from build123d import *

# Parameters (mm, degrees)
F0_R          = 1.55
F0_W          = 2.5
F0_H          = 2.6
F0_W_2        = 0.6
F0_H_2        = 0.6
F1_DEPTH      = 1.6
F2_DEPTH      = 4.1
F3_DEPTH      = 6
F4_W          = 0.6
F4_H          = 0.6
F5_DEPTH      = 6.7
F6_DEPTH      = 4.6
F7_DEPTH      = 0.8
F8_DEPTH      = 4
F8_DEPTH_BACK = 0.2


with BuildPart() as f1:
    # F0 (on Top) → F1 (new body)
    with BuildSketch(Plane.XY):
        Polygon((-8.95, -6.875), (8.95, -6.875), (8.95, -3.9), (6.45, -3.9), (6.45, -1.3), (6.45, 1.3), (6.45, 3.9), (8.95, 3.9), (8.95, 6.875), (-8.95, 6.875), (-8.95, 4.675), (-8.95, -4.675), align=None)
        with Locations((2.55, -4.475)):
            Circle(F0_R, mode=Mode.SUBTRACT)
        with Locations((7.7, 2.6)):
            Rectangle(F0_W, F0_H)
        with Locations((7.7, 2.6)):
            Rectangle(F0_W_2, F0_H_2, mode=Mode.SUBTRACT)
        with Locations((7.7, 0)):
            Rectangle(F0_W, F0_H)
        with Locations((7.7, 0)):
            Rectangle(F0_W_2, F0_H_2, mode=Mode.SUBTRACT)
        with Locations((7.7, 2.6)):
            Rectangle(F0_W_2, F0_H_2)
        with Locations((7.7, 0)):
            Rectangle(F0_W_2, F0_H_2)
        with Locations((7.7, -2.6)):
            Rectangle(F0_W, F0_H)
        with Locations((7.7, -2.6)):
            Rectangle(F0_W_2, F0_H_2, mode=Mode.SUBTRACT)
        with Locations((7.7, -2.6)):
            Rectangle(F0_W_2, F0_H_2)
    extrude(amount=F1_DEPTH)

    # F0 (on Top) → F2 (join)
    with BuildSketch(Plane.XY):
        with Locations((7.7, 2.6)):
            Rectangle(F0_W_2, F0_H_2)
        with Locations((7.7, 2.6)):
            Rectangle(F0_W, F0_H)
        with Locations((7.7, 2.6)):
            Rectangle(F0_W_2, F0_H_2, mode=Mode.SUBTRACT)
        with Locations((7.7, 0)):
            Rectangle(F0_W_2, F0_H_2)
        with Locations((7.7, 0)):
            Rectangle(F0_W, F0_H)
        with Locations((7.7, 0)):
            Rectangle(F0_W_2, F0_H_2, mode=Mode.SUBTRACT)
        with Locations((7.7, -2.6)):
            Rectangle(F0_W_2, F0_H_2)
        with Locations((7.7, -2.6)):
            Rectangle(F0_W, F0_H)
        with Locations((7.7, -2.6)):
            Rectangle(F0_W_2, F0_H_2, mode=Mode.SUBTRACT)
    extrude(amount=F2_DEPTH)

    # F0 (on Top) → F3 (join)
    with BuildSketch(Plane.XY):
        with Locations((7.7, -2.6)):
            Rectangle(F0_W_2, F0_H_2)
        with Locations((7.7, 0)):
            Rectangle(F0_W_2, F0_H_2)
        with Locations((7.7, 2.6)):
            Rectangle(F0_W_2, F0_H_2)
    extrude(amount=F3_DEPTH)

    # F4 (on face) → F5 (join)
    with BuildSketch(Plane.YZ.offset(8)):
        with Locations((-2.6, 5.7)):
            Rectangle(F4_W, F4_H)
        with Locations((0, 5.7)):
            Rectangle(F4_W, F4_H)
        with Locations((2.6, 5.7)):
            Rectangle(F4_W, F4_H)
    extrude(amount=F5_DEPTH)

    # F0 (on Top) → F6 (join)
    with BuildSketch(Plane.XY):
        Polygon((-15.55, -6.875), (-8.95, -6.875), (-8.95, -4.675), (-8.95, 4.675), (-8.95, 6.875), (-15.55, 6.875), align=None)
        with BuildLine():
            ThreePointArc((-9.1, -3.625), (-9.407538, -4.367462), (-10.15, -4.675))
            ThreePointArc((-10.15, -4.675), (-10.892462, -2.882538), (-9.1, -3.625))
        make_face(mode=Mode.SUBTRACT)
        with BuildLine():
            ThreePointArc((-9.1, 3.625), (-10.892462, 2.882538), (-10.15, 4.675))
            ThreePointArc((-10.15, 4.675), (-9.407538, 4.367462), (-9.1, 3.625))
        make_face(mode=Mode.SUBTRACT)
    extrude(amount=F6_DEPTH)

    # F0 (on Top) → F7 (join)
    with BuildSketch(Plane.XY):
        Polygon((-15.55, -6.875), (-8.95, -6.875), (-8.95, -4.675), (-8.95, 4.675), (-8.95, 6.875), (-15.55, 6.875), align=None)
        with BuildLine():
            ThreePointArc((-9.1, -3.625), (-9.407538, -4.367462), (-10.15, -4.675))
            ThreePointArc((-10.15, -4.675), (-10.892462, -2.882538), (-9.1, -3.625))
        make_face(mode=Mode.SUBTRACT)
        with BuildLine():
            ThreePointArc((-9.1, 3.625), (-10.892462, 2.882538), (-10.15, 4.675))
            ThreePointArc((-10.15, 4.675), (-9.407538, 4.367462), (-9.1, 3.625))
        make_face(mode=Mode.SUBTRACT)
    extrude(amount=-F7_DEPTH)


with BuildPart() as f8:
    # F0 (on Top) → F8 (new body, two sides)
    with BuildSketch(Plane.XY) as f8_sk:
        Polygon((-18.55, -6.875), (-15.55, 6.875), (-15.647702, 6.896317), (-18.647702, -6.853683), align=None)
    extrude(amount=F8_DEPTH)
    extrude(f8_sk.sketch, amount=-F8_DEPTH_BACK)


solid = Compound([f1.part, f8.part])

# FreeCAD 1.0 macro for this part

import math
import FreeCAD as App
import Part
import Sketcher


def add_polygon(sketch, points):
    """Adds a closed chain of lines whose ends are joined by coincident constraints."""
    first, n = sketch.GeometryCount, len(points)
    for a, b in zip(points, points[1:] + points[:1]):
        sketch.addGeometry(Part.LineSegment(App.Vector(*a, 0), App.Vector(*b, 0)), False)
    for i in range(n):
        sketch.addConstraint(Sketcher.Constraint("Coincident", first + i, 2, first + (i + 1) % n, 1))

doc = App.newDocument("Part")
body = doc.addObject("PartDesign::Body", "Body")

sketch1 = body.newObject("Sketcher::SketchObject", "Sketch")
sketch1.AttachmentSupport = (doc.getObject("XY_Plane"), [""])
sketch1.MapMode = "FlatFace"
add_polygon(sketch1, [(-8.9, -6.9), (8.9, -6.9), (8.9, 6.9), (-8.9, 6.9)])
sketch1.addGeometry(Part.Circle(App.Vector(2.5, -4.5, 0), App.Vector(0, 0, 1), 1.6), False)
sketch1.addConstraint([
    Sketcher.Constraint("Horizontal", 0),
    Sketcher.Constraint("Vertical", 1),
    Sketcher.Constraint("Horizontal", 2),
    Sketcher.Constraint("Vertical", 3),
    Sketcher.Constraint("Symmetric", 0, 2, 2, 2, -1, 1),
    Sketcher.Constraint("Diameter", 4, 3.1),
    Sketcher.Constraint("DistanceX", 0, 1, 0, 2, 17.9),
    Sketcher.Constraint("DistanceY", 1, 1, 1, 2, 13.75),
    Sketcher.Constraint("DistanceX", 4, 3, 0, 2, 6.4),
    Sketcher.Constraint("DistanceY", 0, 2, 4, 3, 2.4),
])
pad1 = body.newObject("PartDesign::Pad", "Pad")
pad1.Profile = sketch1
pad1.Length = 1.6

sketch2 = body.newObject("Sketcher::SketchObject", "Sketch001")
sketch2.AttachmentSupport = (doc.getObject("XY_Plane"), [""])
sketch2.MapMode = "FlatFace"
add_polygon(sketch2, [(6.5, 3.9), (6.5, -3.9), (8.9, -3.9), (8.9, 3.9)])
add_polygon(sketch2, [(8, -2.9), (7.4, -2.9), (7.4, -2.3), (8, -2.3)])
add_polygon(sketch2, [(8, -0.3), (7.4, -0.3), (7.4, 0.3), (8, 0.3)])
add_polygon(sketch2, [(8, 2.3), (7.4, 2.3), (7.4, 2.9), (8, 2.9)])
sketch2.addConstraint([
    Sketcher.Constraint("Vertical", 0),
    Sketcher.Constraint("Horizontal", 1),
    Sketcher.Constraint("Vertical", 2),
    Sketcher.Constraint("Horizontal", 3),
    Sketcher.Constraint("Horizontal", 4),
    Sketcher.Constraint("Vertical", 5),
    Sketcher.Constraint("Horizontal", 6),
    Sketcher.Constraint("Vertical", 7),
    Sketcher.Constraint("Horizontal", 8),
    Sketcher.Constraint("Vertical", 9),
    Sketcher.Constraint("Horizontal", 10),
    Sketcher.Constraint("Vertical", 11),
    Sketcher.Constraint("Horizontal", 12),
    Sketcher.Constraint("Vertical", 13),
    Sketcher.Constraint("Horizontal", 14),
    Sketcher.Constraint("Vertical", 15),
    Sketcher.Constraint("Symmetric", 5, 2, 12, 2, -1),
    Sketcher.Constraint("Symmetric", 7, 2, 14, 2, -1),
    Sketcher.Constraint("Vertical", 5, 2, 8, 2),
    Sketcher.Constraint("Vertical", 7, 2, 10, 2),
    Sketcher.Constraint("Equal", 14, 5),
    Sketcher.Constraint("Equal", 7, 9),
    Sketcher.Constraint("DistanceX", 1, 1, 1, 2, 2.5),
    Sketcher.Constraint("DistanceX", 4, 2, 4, 1, 0.6),
    Sketcher.Constraint("DistanceY", 0, 2, 0, 1, 7.8),
    Sketcher.Constraint("DistanceX", -1, 1, 6, 2, 8.0),
    Sketcher.Constraint("DistanceY", 0, 2, 4, 2, 1.0),
    Sketcher.Constraint("DistanceY", 5, 2, 8, 2, 2.0),
    Sketcher.Constraint("DistanceY", 9, 2, 12, 2, 2.0),
    Sketcher.Constraint("DistanceX", -1, 1, 0, 2, 6.45),
])
pad2 = body.newObject("PartDesign::Pad", "Pad001")
pad2.Profile = sketch2
pad2.Length = 4.1

sketch3 = body.newObject("Sketcher::SketchObject", "Sketch002")
sketch3.AttachmentSupport = (doc.getObject("XY_Plane"), [""])
sketch3.MapMode = "FlatFace"
add_polygon(sketch3, [(7.4, -2.3), (7.4, -2.9), (8, -2.9), (8, -2.3)])
add_polygon(sketch3, [(7.4, 0.3), (7.4, -0.3), (8, -0.3), (8, 0.3)])
add_polygon(sketch3, [(7.4, 2.9), (7.4, 2.3), (8, 2.3), (8, 2.9)])
sketch3.addConstraint([
    Sketcher.Constraint("Vertical", 0),
    Sketcher.Constraint("Horizontal", 1),
    Sketcher.Constraint("Vertical", 2),
    Sketcher.Constraint("Horizontal", 3),
    Sketcher.Constraint("Vertical", 4),
    Sketcher.Constraint("Horizontal", 5),
    Sketcher.Constraint("Vertical", 6),
    Sketcher.Constraint("Horizontal", 7),
    Sketcher.Constraint("Vertical", 8),
    Sketcher.Constraint("Horizontal", 9),
    Sketcher.Constraint("Vertical", 10),
    Sketcher.Constraint("Horizontal", 11),
    Sketcher.Constraint("Symmetric", 3, 2, 8, 2, -1),
    Sketcher.Constraint("Symmetric", 1, 2, 10, 2, -1),
    Sketcher.Constraint("Vertical", 3, 2, 4, 2),
    Sketcher.Constraint("Vertical", 2, 2, 5, 2),
    Sketcher.Constraint("Equal", 11, 0),
    Sketcher.Constraint("Equal", 2, 4),
    Sketcher.Constraint("DistanceX", 1, 1, 1, 2, 0.6),
    Sketcher.Constraint("DistanceX", -1, 1, 1, 2, 8.0),
    Sketcher.Constraint("DistanceY", 3, 2, 4, 2, 2.0),
    Sketcher.Constraint("DistanceY", 7, 2, 8, 2, 2.0),
])
pad3 = body.newObject("PartDesign::Pad", "Pad002")
pad3.Profile = sketch3
pad3.Length = 6

sketch4 = body.newObject("Sketcher::SketchObject", "Sketch003")
sketch4.AttachmentSupport = (doc.getObject("YZ_Plane"), [""])
sketch4.MapMode = "FlatFace"
sketch4.AttachmentOffset = App.Placement(App.Vector(0, 0, 8), App.Rotation())
add_polygon(sketch4, [(-2.9, 6), (-2.9, 5.4), (-2.3, 5.4), (-2.3, 6)])
add_polygon(sketch4, [(-0.3, 6), (-0.3, 5.4), (0.3, 5.4), (0.3, 6)])
add_polygon(sketch4, [(2.3, 6), (2.3, 5.4), (2.9, 5.4), (2.9, 6)])
sketch4.addConstraint([
    Sketcher.Constraint("Vertical", 0),
    Sketcher.Constraint("Horizontal", 1),
    Sketcher.Constraint("Vertical", 2),
    Sketcher.Constraint("Horizontal", 3),
    Sketcher.Constraint("Vertical", 4),
    Sketcher.Constraint("Horizontal", 5),
    Sketcher.Constraint("Vertical", 6),
    Sketcher.Constraint("Horizontal", 7),
    Sketcher.Constraint("Vertical", 8),
    Sketcher.Constraint("Horizontal", 9),
    Sketcher.Constraint("Vertical", 10),
    Sketcher.Constraint("Horizontal", 11),
    Sketcher.Constraint("Symmetric", 1, 2, 8, 2, -2),
    Sketcher.Constraint("Symmetric", 3, 2, 10, 2, -2),
    Sketcher.Constraint("Horizontal", 1, 2, 4, 2),
    Sketcher.Constraint("Horizontal", 3, 2, 6, 2),
    Sketcher.Constraint("Equal", 3, 5),
    Sketcher.Constraint("Equal", 11, 0),
    Sketcher.Constraint("DistanceX", 1, 1, 1, 2, 0.6),
    Sketcher.Constraint("DistanceY", -1, 1, 2, 2, 6.0),
    Sketcher.Constraint("DistanceX", 1, 2, 4, 2, 2.0),
    Sketcher.Constraint("DistanceX", 5, 2, 8, 2, 2.0),
])
pad4 = body.newObject("PartDesign::Pad", "Pad003")
pad4.Profile = sketch4
pad4.Length = 6.7

sketch5 = body.newObject("Sketcher::SketchObject", "Sketch004")
sketch5.AttachmentSupport = (doc.getObject("XY_Plane"), [""])
sketch5.MapMode = "FlatFace"
add_polygon(sketch5, [(-15.6, -6.9), (-8.9, -6.9), (-8.9, 6.9), (-15.6, 6.9)])
sketch5.addGeometry(Part.ArcOfCircle(Part.Circle(App.Vector(-10.1, -3.6, 0), App.Vector(0, 0, 1), 1), math.radians(0), math.radians(270)), False)
sketch5.addGeometry(Part.ArcOfCircle(Part.Circle(App.Vector(-10.2, -3.6, 0), App.Vector(0, 0, 1), 1.1), math.radians(-90), math.radians(0)), False)
sketch5.addGeometry(Part.ArcOfCircle(Part.Circle(App.Vector(-10.2, 3.6, 0), App.Vector(0, 0, 1), 1.1), math.radians(0), math.radians(90)), False)
sketch5.addGeometry(Part.ArcOfCircle(Part.Circle(App.Vector(-10.1, 3.6, 0), App.Vector(0, 0, 1), 1), math.radians(90), math.radians(360)), False)
sketch5.addConstraint([
    Sketcher.Constraint("Tangent", 4, 1, 5, 2),
    Sketcher.Constraint("Coincident", 5, 1, 4, 2),
    Sketcher.Constraint("Tangent", 6, 1, 7, 2),
    Sketcher.Constraint("Coincident", 7, 1, 6, 2),
    Sketcher.Constraint("Horizontal", 0),
    Sketcher.Constraint("Vertical", 1),
    Sketcher.Constraint("Horizontal", 2),
    Sketcher.Constraint("Vertical", 3),
    Sketcher.Constraint("Equal", 5, 6),
    Sketcher.Constraint("Symmetric", 4, 3, 6, 3, -1),
    Sketcher.Constraint("Horizontal", 5, 3, 4, 1),
    Sketcher.Constraint("Horizontal", 7, 3, 6, 1),
    Sketcher.Constraint("Vertical", 7, 3, 5, 1),
    Sketcher.Constraint("Vertical", 5, 1, 7, 1),
    Sketcher.Constraint("Radius", 4, 1.05),
    Sketcher.Constraint("DistanceX", 0, 1, 0, 2, 6.6),
    Sketcher.Constraint("DistanceY", 1, 1, 1, 2, 13.75),
    Sketcher.Constraint("DistanceX", 4, 1, -1, 1, 9.1),
    Sketcher.Constraint("DistanceX", 4, 3, 0, 2, 1.2),
    Sketcher.Constraint("DistanceY", 0, 2, 6, 3, 10.5),
    Sketcher.Constraint("DistanceY", 5, 3, 1, 2, 10.5),
])
pad5 = body.newObject("PartDesign::Pad", "Pad004")
pad5.Profile = sketch5
pad5.Length = 4.6

sketch6 = body.newObject("Sketcher::SketchObject", "Sketch005")
sketch6.AttachmentSupport = (doc.getObject("XY_Plane"), [""])
sketch6.MapMode = "FlatFace"
add_polygon(sketch6, [(-15.6, -6.9), (-8.9, -6.9), (-8.9, 6.9), (-15.6, 6.9)])
sketch6.addGeometry(Part.ArcOfCircle(Part.Circle(App.Vector(-10.1, -3.6, 0), App.Vector(0, 0, 1), 1), math.radians(0), math.radians(270)), False)
sketch6.addGeometry(Part.ArcOfCircle(Part.Circle(App.Vector(-10.2, -3.6, 0), App.Vector(0, 0, 1), 1.1), math.radians(-90), math.radians(0)), False)
sketch6.addGeometry(Part.ArcOfCircle(Part.Circle(App.Vector(-10.2, 3.6, 0), App.Vector(0, 0, 1), 1.1), math.radians(0), math.radians(90)), False)
sketch6.addGeometry(Part.ArcOfCircle(Part.Circle(App.Vector(-10.1, 3.6, 0), App.Vector(0, 0, 1), 1), math.radians(90), math.radians(360)), False)
sketch6.addConstraint([
    Sketcher.Constraint("Tangent", 4, 1, 5, 2),
    Sketcher.Constraint("Coincident", 5, 1, 4, 2),
    Sketcher.Constraint("Tangent", 6, 1, 7, 2),
    Sketcher.Constraint("Coincident", 7, 1, 6, 2),
    Sketcher.Constraint("Horizontal", 0),
    Sketcher.Constraint("Vertical", 1),
    Sketcher.Constraint("Horizontal", 2),
    Sketcher.Constraint("Vertical", 3),
    Sketcher.Constraint("Equal", 5, 6),
    Sketcher.Constraint("Symmetric", 4, 3, 6, 3, -1),
    Sketcher.Constraint("Horizontal", 5, 3, 4, 1),
    Sketcher.Constraint("Horizontal", 7, 3, 6, 1),
    Sketcher.Constraint("Vertical", 7, 3, 5, 1),
    Sketcher.Constraint("Vertical", 5, 1, 7, 1),
    Sketcher.Constraint("Radius", 4, 1.05),
    Sketcher.Constraint("DistanceX", 0, 1, 0, 2, 6.6),
    Sketcher.Constraint("DistanceY", 1, 1, 1, 2, 13.75),
    Sketcher.Constraint("DistanceX", 4, 1, -1, 1, 9.1),
    Sketcher.Constraint("DistanceX", 4, 3, 0, 2, 1.2),
    Sketcher.Constraint("DistanceY", 0, 2, 6, 3, 10.5),
    Sketcher.Constraint("DistanceY", 5, 3, 1, 2, 10.5),
])
pad6 = body.newObject("PartDesign::Pad", "Pad005")
pad6.Profile = sketch6
pad6.Length = 0.8
pad6.Reversed = True
body2 = doc.addObject("PartDesign::Body", "Body001")

sketch7 = body2.newObject("Sketcher::SketchObject", "Sketch006")
sketch7.AttachmentSupport = (doc.getObject("XY_Plane001"), [""])
sketch7.MapMode = "FlatFace"
add_polygon(sketch7, [(-18.55, -6.88), (-15.55, 6.88), (-15.65, 6.9), (-18.65, -6.85)])
sketch7.addConstraint([
    Sketcher.Constraint("Perpendicular", 0, 1),
    Sketcher.Constraint("Perpendicular", 1, 2),
    Sketcher.Constraint("Perpendicular", 2, 3),
    Sketcher.Constraint("DistanceX", 2, 2, 1, 2, 3.0),
    Sketcher.Constraint("Distance", 1, 0.1),
    Sketcher.Constraint("DistanceX", 0, 2, -1, 1, 15.55),
    Sketcher.Constraint("DistanceY", 2, 2, 1, 2, 13.75),
    Sketcher.Constraint("DistanceY", -1, 1, 0, 2, 6.875),
])
pad7 = body2.newObject("PartDesign::Pad", "Pad006")
pad7.Profile = sketch7
pad7.Type = "TwoLengths"
pad7.Length = 4
pad7.Length2 = 0.2

doc.recompute()
